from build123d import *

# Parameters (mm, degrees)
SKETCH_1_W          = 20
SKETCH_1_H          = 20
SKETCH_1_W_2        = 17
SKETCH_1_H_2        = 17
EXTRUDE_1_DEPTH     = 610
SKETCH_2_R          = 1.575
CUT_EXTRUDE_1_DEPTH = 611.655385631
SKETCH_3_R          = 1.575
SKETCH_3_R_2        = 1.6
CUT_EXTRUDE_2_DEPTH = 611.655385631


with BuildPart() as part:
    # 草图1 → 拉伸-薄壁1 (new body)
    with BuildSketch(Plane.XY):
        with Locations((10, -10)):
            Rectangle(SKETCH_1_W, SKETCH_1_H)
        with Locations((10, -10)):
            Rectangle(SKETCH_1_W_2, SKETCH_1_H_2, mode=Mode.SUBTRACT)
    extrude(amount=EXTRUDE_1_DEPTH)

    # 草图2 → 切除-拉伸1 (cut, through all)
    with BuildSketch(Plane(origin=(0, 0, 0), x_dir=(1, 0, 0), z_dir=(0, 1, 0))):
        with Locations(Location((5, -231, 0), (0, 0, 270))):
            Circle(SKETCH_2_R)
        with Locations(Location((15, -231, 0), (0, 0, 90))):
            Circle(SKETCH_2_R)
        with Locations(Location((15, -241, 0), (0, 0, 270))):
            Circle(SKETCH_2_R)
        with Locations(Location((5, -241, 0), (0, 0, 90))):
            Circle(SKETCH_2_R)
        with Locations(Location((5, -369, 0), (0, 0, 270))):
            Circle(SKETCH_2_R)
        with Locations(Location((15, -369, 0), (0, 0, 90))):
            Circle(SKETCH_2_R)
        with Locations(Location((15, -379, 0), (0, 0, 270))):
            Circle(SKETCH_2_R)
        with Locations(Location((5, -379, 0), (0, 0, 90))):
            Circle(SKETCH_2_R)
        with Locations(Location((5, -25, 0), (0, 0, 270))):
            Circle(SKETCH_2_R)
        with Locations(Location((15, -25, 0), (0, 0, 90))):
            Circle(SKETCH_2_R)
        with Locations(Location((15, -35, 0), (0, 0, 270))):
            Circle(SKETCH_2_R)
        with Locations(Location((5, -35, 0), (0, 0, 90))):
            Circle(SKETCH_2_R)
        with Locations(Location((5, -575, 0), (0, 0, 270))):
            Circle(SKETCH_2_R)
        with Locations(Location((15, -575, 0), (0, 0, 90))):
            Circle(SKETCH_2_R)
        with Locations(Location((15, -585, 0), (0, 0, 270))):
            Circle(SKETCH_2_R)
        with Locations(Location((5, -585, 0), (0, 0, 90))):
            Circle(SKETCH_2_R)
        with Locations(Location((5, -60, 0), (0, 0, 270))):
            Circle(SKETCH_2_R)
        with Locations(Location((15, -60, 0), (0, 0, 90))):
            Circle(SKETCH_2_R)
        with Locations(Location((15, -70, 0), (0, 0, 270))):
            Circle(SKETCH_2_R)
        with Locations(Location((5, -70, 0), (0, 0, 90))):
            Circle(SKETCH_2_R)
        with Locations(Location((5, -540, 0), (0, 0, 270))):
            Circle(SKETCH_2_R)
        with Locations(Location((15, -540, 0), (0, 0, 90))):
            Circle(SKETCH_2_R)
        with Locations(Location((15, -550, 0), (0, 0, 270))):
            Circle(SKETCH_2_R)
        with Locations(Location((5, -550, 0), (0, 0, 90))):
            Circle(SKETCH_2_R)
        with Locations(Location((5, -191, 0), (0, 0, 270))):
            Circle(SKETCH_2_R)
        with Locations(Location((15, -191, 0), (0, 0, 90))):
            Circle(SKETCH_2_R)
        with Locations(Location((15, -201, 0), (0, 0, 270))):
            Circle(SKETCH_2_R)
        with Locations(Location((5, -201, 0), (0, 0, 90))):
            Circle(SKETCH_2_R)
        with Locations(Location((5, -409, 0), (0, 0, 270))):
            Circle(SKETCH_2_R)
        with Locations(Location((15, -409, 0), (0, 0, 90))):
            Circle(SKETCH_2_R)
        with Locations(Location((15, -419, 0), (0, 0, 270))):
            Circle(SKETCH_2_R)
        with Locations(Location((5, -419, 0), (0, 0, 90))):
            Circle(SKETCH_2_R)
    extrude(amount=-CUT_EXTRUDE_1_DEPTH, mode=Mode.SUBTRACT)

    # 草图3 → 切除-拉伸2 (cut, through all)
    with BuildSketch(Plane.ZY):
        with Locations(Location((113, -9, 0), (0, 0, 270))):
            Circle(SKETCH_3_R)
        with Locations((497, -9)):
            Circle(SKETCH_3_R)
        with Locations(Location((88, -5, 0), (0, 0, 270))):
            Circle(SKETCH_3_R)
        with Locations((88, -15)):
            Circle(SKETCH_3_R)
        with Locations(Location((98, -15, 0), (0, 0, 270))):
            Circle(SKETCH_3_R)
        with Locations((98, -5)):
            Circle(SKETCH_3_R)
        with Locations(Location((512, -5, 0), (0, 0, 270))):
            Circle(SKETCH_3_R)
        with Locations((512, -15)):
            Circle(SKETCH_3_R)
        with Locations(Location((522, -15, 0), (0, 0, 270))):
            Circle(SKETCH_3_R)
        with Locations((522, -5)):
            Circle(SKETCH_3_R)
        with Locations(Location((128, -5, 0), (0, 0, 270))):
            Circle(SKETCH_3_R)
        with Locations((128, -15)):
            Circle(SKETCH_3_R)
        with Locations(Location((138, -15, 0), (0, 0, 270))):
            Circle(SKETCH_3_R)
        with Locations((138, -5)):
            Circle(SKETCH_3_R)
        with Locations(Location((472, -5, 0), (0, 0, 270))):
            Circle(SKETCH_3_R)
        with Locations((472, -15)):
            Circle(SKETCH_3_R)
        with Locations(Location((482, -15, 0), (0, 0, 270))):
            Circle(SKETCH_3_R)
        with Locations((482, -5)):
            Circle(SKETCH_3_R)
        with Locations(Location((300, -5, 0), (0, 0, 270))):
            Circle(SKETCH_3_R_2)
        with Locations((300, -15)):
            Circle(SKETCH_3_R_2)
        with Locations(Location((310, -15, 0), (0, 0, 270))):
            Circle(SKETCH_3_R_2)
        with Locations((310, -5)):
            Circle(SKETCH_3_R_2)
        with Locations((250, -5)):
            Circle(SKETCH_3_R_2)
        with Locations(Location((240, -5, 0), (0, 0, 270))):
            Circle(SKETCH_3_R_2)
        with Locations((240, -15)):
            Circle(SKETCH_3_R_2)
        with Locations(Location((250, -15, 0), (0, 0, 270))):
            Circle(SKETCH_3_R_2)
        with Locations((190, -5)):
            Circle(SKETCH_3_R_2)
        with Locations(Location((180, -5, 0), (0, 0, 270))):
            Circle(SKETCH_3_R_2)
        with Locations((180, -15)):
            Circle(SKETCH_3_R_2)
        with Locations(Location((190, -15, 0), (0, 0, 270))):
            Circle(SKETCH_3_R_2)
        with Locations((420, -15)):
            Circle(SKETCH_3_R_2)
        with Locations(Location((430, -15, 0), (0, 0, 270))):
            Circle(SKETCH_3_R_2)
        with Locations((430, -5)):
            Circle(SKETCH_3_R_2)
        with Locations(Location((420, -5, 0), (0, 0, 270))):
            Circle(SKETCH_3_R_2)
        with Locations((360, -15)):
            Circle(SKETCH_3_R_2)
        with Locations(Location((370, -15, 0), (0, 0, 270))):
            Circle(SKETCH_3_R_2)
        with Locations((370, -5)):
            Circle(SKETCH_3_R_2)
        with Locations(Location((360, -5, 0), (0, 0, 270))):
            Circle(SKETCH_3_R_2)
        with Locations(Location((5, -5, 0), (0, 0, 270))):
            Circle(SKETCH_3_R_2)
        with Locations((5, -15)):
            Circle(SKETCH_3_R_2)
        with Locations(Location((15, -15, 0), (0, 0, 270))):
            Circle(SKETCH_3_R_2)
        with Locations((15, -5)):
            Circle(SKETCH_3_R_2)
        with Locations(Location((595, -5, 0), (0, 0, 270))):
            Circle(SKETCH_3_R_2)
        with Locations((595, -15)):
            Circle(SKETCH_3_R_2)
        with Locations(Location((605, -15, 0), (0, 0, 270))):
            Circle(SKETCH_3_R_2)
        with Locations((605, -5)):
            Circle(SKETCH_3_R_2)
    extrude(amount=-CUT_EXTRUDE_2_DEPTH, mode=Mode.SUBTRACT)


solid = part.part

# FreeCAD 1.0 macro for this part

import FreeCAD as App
import Part
import Sketcher
from FreeCAD import Vector


def add_polygon(sketch, points):
    """Adds a closed chain of lines whose ends are joined by coincident constraints."""
    first, n = sketch.GeometryCount, len(points)
    for a, b in zip(points, points[1:] + points[:1]):
        sketch.addGeometry(Part.LineSegment(App.Vector(*a, 0), App.Vector(*b, 0)), False)
    for i in range(n):
        sketch.addConstraint(Sketcher.Constraint("Coincident", first + i, 2, first + (i + 1) % n, 1))

doc = App.newDocument("Part")
body = doc.addObject("PartDesign::Body", "Body")

# Sketch on XY plane
sketch1 = doc.addObject("Sketcher::SketchObject", "Sketch")
body.addObject(sketch1)
sketch1.AttachmentSupport = (doc.XY_Plane, [""])
sketch1.MapMode = "FlatFace"
add_polygon(sketch1, [(0, 0), (0, -20), (20, -20), (20, 0)])  # lines 0-3
add_polygon(sketch1, [(18, -18), (2, -18), (2, -2), (18, -2)])  # lines 4-7
sketch1.addConstraint(Sketcher.Constraint("Vertical", 0))
sketch1.addConstraint(Sketcher.Constraint("Horizontal", 1))
sketch1.addConstraint(Sketcher.Constraint("Vertical", 2))
sketch1.addConstraint(Sketcher.Constraint("Horizontal", 3))
sketch1.addConstraint(Sketcher.Constraint("Horizontal", 4))
sketch1.addConstraint(Sketcher.Constraint("Vertical", 5))
sketch1.addConstraint(Sketcher.Constraint("Horizontal", 6))
sketch1.addConstraint(Sketcher.Constraint("Vertical", 7))
sketch1.addConstraint(Sketcher.Constraint("Coincident", 3, 2, -1, 1))
sketch1.addConstraint(Sketcher.Constraint("Equal", 3, 0))
sketch1.addConstraint(Sketcher.Constraint("Equal", 6, 5))
sketch1.addConstraint(Sketcher.Constraint("DistanceX", 1, 1, 1, 2, 20.0))
sketch1.addConstraint(Sketcher.Constraint("DistanceX", 4, 2, 4, 1, 17.0))
sketch1.addConstraint(Sketcher.Constraint("DistanceX", -1, 1, 4, 2, 1.5))
sketch1.addConstraint(Sketcher.Constraint("DistanceY", 4, 2, -1, 1, 18.5))
pad1 = doc.addObject("PartDesign::Pad", "Pad")
body.addObject(pad1)
pad1.Profile = sketch1
pad1.Length = 610

# Sketch on XZ plane
sketch2 = doc.addObject("Sketcher::SketchObject", "Sketch001")
body.addObject(sketch2)
sketch2.AttachmentSupport = (doc.XZ_Plane, [""])
sketch2.MapMode = "FlatFace"
sketch2.addGeometry(Part.Circle(Vector(5, 231, 0), Vector(0, 0, 1), 1.6), False)
sketch2.addGeometry(Part.Circle(Vector(15, 231, 0), Vector(0, 0, 1), 1.6), False)
sketch2.addGeometry(Part.Circle(Vector(15, 241, 0), Vector(0, 0, 1), 1.6), False)
sketch2.addGeometry(Part.Circle(Vector(5, 241, 0), Vector(0, 0, 1), 1.6), False)
sketch2.addGeometry(Part.Circle(Vector(5, 369, 0), Vector(0, 0, 1), 1.6), False)
sketch2.addGeometry(Part.Circle(Vector(15, 369, 0), Vector(0, 0, 1), 1.6), False)
sketch2.addGeometry(Part.Circle(Vector(15, 379, 0), Vector(0, 0, 1), 1.6), False)
sketch2.addGeometry(Part.Circle(Vector(5, 379, 0), Vector(0, 0, 1), 1.6), False)
sketch2.addGeometry(Part.Circle(Vector(5, 25, 0), Vector(0, 0, 1), 1.6), False)
sketch2.addGeometry(Part.Circle(Vector(15, 25, 0), Vector(0, 0, 1), 1.6), False)
sketch2.addGeometry(Part.Circle(Vector(15, 35, 0), Vector(0, 0, 1), 1.6), False)
sketch2.addGeometry(Part.Circle(Vector(5, 35, 0), Vector(0, 0, 1), 1.6), False)
sketch2.addGeometry(Part.Circle(Vector(5, 575, 0), Vector(0, 0, 1), 1.6), False)
sketch2.addGeometry(Part.Circle(Vector(15, 575, 0), Vector(0, 0, 1), 1.6), False)
sketch2.addGeometry(Part.Circle(Vector(15, 585, 0), Vector(0, 0, 1), 1.6), False)
sketch2.addGeometry(Part.Circle(Vector(5, 585, 0), Vector(0, 0, 1), 1.6), False)
sketch2.addGeometry(Part.Circle(Vector(5, 60, 0), Vector(0, 0, 1), 1.6), False)
sketch2.addGeometry(Part.Circle(Vector(15, 60, 0), Vector(0, 0, 1), 1.6), False)
sketch2.addGeometry(Part.Circle(Vector(15, 70, 0), Vector(0, 0, 1), 1.6), False)
sketch2.addGeometry(Part.Circle(Vector(5, 70, 0), Vector(0, 0, 1), 1.6), False)
sketch2.addGeometry(Part.Circle(Vector(5, 540, 0), Vector(0, 0, 1), 1.6), False)
sketch2.addGeometry(Part.Circle(Vector(15, 540, 0), Vector(0, 0, 1), 1.6), False)
sketch2.addGeometry(Part.Circle(Vector(15, 550, 0), Vector(0, 0, 1), 1.6), False)
sketch2.addGeometry(Part.Circle(Vector(5, 550, 0), Vector(0, 0, 1), 1.6), False)
sketch2.addGeometry(Part.Circle(Vector(5, 191, 0), Vector(0, 0, 1), 1.6), False)
sketch2.addGeometry(Part.Circle(Vector(15, 191, 0), Vector(0, 0, 1), 1.6), False)
sketch2.addGeometry(Part.Circle(Vector(15, 201, 0), Vector(0, 0, 1), 1.6), False)
sketch2.addGeometry(Part.Circle(Vector(5, 201, 0), Vector(0, 0, 1), 1.6), False)
sketch2.addGeometry(Part.Circle(Vector(5, 409, 0), Vector(0, 0, 1), 1.6), False)
sketch2.addGeometry(Part.Circle(Vector(15, 409, 0), Vector(0, 0, 1), 1.6), False)
sketch2.addGeometry(Part.Circle(Vector(15, 419, 0), Vector(0, 0, 1), 1.6), False)
sketch2.addGeometry(Part.Circle(Vector(5, 419, 0), Vector(0, 0, 1), 1.6), False)
sketch2.addConstraint(Sketcher.Constraint("Equal", 0, 1))
sketch2.addConstraint(Sketcher.Constraint("Equal", 1, 2))
sketch2.addConstraint(Sketcher.Constraint("Equal", 2, 3))
sketch2.addConstraint(Sketcher.Constraint("Equal", 3, 4))
sketch2.addConstraint(Sketcher.Constraint("Equal", 4, 5))
sketch2.addConstraint(Sketcher.Constraint("Equal", 5, 6))
sketch2.addConstraint(Sketcher.Constraint("Equal", 6, 7))
sketch2.addConstraint(Sketcher.Constraint("Equal", 7, 8))
sketch2.addConstraint(Sketcher.Constraint("Equal", 8, 9))
sketch2.addConstraint(Sketcher.Constraint("Equal", 9, 10))
sketch2.addConstraint(Sketcher.Constraint("Equal", 10, 11))
sketch2.addConstraint(Sketcher.Constraint("Equal", 11, 12))
sketch2.addConstraint(Sketcher.Constraint("Equal", 12, 13))
sketch2.addConstraint(Sketcher.Constraint("Equal", 13, 14))
sketch2.addConstraint(Sketcher.Constraint("Equal", 14, 15))
sketch2.addConstraint(Sketcher.Constraint("Equal", 15, 16))
sketch2.addConstraint(Sketcher.Constraint("Equal", 16, 17))
sketch2.addConstraint(Sketcher.Constraint("Equal", 17, 18))
sketch2.addConstraint(Sketcher.Constraint("Equal", 18, 19))
sketch2.addConstraint(Sketcher.Constraint("Equal", 19, 20))
sketch2.addConstraint(Sketcher.Constraint("Equal", 20, 21))
sketch2.addConstraint(Sketcher.Constraint("Equal", 21, 22))
sketch2.addConstraint(Sketcher.Constraint("Equal", 22, 23))
sketch2.addConstraint(Sketcher.Constraint("Equal", 23, 24))
sketch2.addConstraint(Sketcher.Constraint("Equal", 24, 25))
sketch2.addConstraint(Sketcher.Constraint("Equal", 25, 26))
sketch2.addConstraint(Sketcher.Constraint("Equal", 26, 27))
sketch2.addConstraint(Sketcher.Constraint("Equal", 27, 28))
sketch2.addConstraint(Sketcher.Constraint("Equal", 28, 29))
sketch2.addConstraint(Sketcher.Constraint("Equal", 29, 30))
sketch2.addConstraint(Sketcher.Constraint("Equal", 30, 31))
sketch2.addConstraint(Sketcher.Constraint("Horizontal", 0, 3, 1, 3))
sketch2.addConstraint(Sketcher.Constraint("Horizontal", 2, 3, 3, 3))
sketch2.addConstraint(Sketcher.Constraint("Horizontal", 4, 3, 5, 3))
sketch2.addConstraint(Sketcher.Constraint("Horizontal", 6, 3, 7, 3))
sketch2.addConstraint(Sketcher.Constraint("Horizontal", 8, 3, 9, 3))
sketch2.addConstraint(Sketcher.Constraint("Horizontal", 10, 3, 11, 3))
sketch2.addConstraint(Sketcher.Constraint("Horizontal", 12, 3, 13, 3))
sketch2.addConstraint(Sketcher.Constraint("Horizontal", 14, 3, 15, 3))
sketch2.addConstraint(Sketcher.Constraint("Horizontal", 16, 3, 17, 3))
sketch2.addConstraint(Sketcher.Constraint("Horizontal", 18, 3, 19, 3))
sketch2.addConstraint(Sketcher.Constraint("Horizontal", 20, 3, 21, 3))
sketch2.addConstraint(Sketcher.Constraint("Horizontal", 22, 3, 23, 3))
sketch2.addConstraint(Sketcher.Constraint("Horizontal", 24, 3, 25, 3))
sketch2.addConstraint(Sketcher.Constraint("Horizontal", 26, 3, 27, 3))
sketch2.addConstraint(Sketcher.Constraint("Horizontal", 28, 3, 29, 3))
sketch2.addConstraint(Sketcher.Constraint("Horizontal", 30, 3, 31, 3))
sketch2.addConstraint(Sketcher.Constraint("Vertical", 1, 3, 2, 3))
sketch2.addConstraint(Sketcher.Constraint("Vertical", 0, 3, 3, 3))
sketch2.addConstraint(Sketcher.Constraint("Vertical", 3, 3, 4, 3))
sketch2.addConstraint(Sketcher.Constraint("Vertical", 2, 3, 5, 3))
sketch2.addConstraint(Sketcher.Constraint("Vertical", 5, 3, 6, 3))
sketch2.addConstraint(Sketcher.Constraint("Vertical", 4, 3, 7, 3))
sketch2.addConstraint(Sketcher.Constraint("Vertical", 7, 3, 8, 3))
sketch2.addConstraint(Sketcher.Constraint("Vertical", 6, 3, 9, 3))
sketch2.addConstraint(Sketcher.Constraint("Vertical", 9, 3, 10, 3))
sketch2.addConstraint(Sketcher.Constraint("Vertical", 8, 3, 11, 3))
sketch2.addConstraint(Sketcher.Constraint("Vertical", 11, 3, 12, 3))
sketch2.addConstraint(Sketcher.Constraint("Vertical", 10, 3, 13, 3))
sketch2.addConstraint(Sketcher.Constraint("Vertical", 13, 3, 14, 3))
sketch2.addConstraint(Sketcher.Constraint("Vertical", 12, 3, 15, 3))
sketch2.addConstraint(Sketcher.Constraint("Vertical", 15, 3, 16, 3))
sketch2.addConstraint(Sketcher.Constraint("Vertical", 14, 3, 17, 3))
sketch2.addConstraint(Sketcher.Constraint("Vertical", 17, 3, 18, 3))
sketch2.addConstraint(Sketcher.Constraint("Vertical", 16, 3, 19, 3))
sketch2.addConstraint(Sketcher.Constraint("Vertical", 19, 3, 20, 3))
sketch2.addConstraint(Sketcher.Constraint("Vertical", 18, 3, 21, 3))
sketch2.addConstraint(Sketcher.Constraint("Vertical", 21, 3, 22, 3))
sketch2.addConstraint(Sketcher.Constraint("Vertical", 20, 3, 23, 3))
sketch2.addConstraint(Sketcher.Constraint("Vertical", 23, 3, 24, 3))
sketch2.addConstraint(Sketcher.Constraint("Vertical", 22, 3, 25, 3))
sketch2.addConstraint(Sketcher.Constraint("Vertical", 25, 3, 26, 3))
sketch2.addConstraint(Sketcher.Constraint("Vertical", 24, 3, 27, 3))
sketch2.addConstraint(Sketcher.Constraint("Vertical", 27, 3, 28, 3))
sketch2.addConstraint(Sketcher.Constraint("Vertical", 26, 3, 29, 3))
sketch2.addConstraint(Sketcher.Constraint("Vertical", 29, 3, 30, 3))
sketch2.addConstraint(Sketcher.Constraint("Vertical", 28, 3, 31, 3))
sketch2.addConstraint(Sketcher.Constraint("Diameter", 0, 3.15))
sketch2.addConstraint(Sketcher.Constraint("DistanceX", -1, 1, 0, 3, 5.0))
sketch2.addConstraint(Sketcher.Constraint("DistanceY", -1, 1, 0, 3, 231.0))
sketch2.addConstraint(Sketcher.Constraint("DistanceX", -1, 1, 1, 3, 15.0))
sketch2.addConstraint(Sketcher.Constraint("DistanceY", -1, 1, 2, 3, 241.0))
sketch2.addConstraint(Sketcher.Constraint("DistanceY", -1, 1, 4, 3, 369.0))
sketch2.addConstraint(Sketcher.Constraint("DistanceY", -1, 1, 6, 3, 379.0))
sketch2.addConstraint(Sketcher.Constraint("DistanceY", -1, 1, 8, 3, 25.0))
sketch2.addConstraint(Sketcher.Constraint("DistanceY", -1, 1, 10, 3, 35.0))
sketch2.addConstraint(Sketcher.Constraint("DistanceY", -1, 1, 12, 3, 575.0))
sketch2.addConstraint(Sketcher.Constraint("DistanceY", -1, 1, 14, 3, 585.0))
sketch2.addConstraint(Sketcher.Constraint("DistanceY", -1, 1, 16, 3, 60.0))
sketch2.addConstraint(Sketcher.Constraint("DistanceY", -1, 1, 18, 3, 70.0))
sketch2.addConstraint(Sketcher.Constraint("DistanceY", -1, 1, 20, 3, 540.0))
sketch2.addConstraint(Sketcher.Constraint("DistanceY", -1, 1, 22, 3, 550.0))
sketch2.addConstraint(Sketcher.Constraint("DistanceY", -1, 1, 24, 3, 191.0))
sketch2.addConstraint(Sketcher.Constraint("DistanceY", -1, 1, 26, 3, 201.0))
sketch2.addConstraint(Sketcher.Constraint("DistanceY", -1, 1, 28, 3, 409.0))
sketch2.addConstraint(Sketcher.Constraint("DistanceY", -1, 1, 30, 3, 419.0))
pocket1 = doc.addObject("PartDesign::Pocket", "Pocket")
body.addObject(pocket1)
pocket1.Profile = sketch2
pocket1.Type = "ThroughAll"
pocket1.Reversed = True

# Sketch on YZ plane
sketch3 = doc.addObject("Sketcher::SketchObject", "Sketch002")
body.addObject(sketch3)
sketch3.AttachmentSupport = (doc.YZ_Plane, [""])
sketch3.MapMode = "FlatFace"
sketch3.addGeometry(Part.Circle(Vector(-9, 113, 0), Vector(0, 0, 1), 1.6), False)
sketch3.addGeometry(Part.Circle(Vector(-9, 497, 0), Vector(0, 0, 1), 1.6), False)
sketch3.addGeometry(Part.Circle(Vector(-5, 88, 0), Vector(0, 0, 1), 1.6), False)
sketch3.addGeometry(Part.Circle(Vector(-15, 88, 0), Vector(0, 0, 1), 1.6), False)
sketch3.addGeometry(Part.Circle(Vector(-15, 98, 0), Vector(0, 0, 1), 1.6), False)
sketch3.addGeometry(Part.Circle(Vector(-5, 98, 0), Vector(0, 0, 1), 1.6), False)
sketch3.addGeometry(Part.Circle(Vector(-5, 512, 0), Vector(0, 0, 1), 1.6), False)
sketch3.addGeometry(Part.Circle(Vector(-15, 512, 0), Vector(0, 0, 1), 1.6), False)
sketch3.addGeometry(Part.Circle(Vector(-15, 522, 0), Vector(0, 0, 1), 1.6), False)
sketch3.addGeometry(Part.Circle(Vector(-5, 522, 0), Vector(0, 0, 1), 1.6), False)
sketch3.addGeometry(Part.Circle(Vector(-5, 128, 0), Vector(0, 0, 1), 1.6), False)
sketch3.addGeometry(Part.Circle(Vector(-15, 128, 0), Vector(0, 0, 1), 1.6), False)
sketch3.addGeometry(Part.Circle(Vector(-15, 138, 0), Vector(0, 0, 1), 1.6), False)
sketch3.addGeometry(Part.Circle(Vector(-5, 138, 0), Vector(0, 0, 1), 1.6), False)
sketch3.addGeometry(Part.Circle(Vector(-5, 472, 0), Vector(0, 0, 1), 1.6), False)
sketch3.addGeometry(Part.Circle(Vector(-15, 472, 0), Vector(0, 0, 1), 1.6), False)
sketch3.addGeometry(Part.Circle(Vector(-15, 482, 0), Vector(0, 0, 1), 1.6), False)
sketch3.addGeometry(Part.Circle(Vector(-5, 482, 0), Vector(0, 0, 1), 1.6), False)
sketch3.addGeometry(Part.Circle(Vector(-5, 300, 0), Vector(0, 0, 1), 1.6), False)
sketch3.addGeometry(Part.Circle(Vector(-15, 300, 0), Vector(0, 0, 1), 1.6), False)
sketch3.addGeometry(Part.Circle(Vector(-15, 310, 0), Vector(0, 0, 1), 1.6), False)
sketch3.addGeometry(Part.Circle(Vector(-5, 310, 0), Vector(0, 0, 1), 1.6), False)
sketch3.addGeometry(Part.Circle(Vector(-5, 250, 0), Vector(0, 0, 1), 1.6), False)
sketch3.addGeometry(Part.Circle(Vector(-5, 240, 0), Vector(0, 0, 1), 1.6), False)
sketch3.addGeometry(Part.Circle(Vector(-15, 240, 0), Vector(0, 0, 1), 1.6), False)
sketch3.addGeometry(Part.Circle(Vector(-15, 250, 0), Vector(0, 0, 1), 1.6), False)
sketch3.addGeometry(Part.Circle(Vector(-5, 190, 0), Vector(0, 0, 1), 1.6), False)
sketch3.addGeometry(Part.Circle(Vector(-5, 180, 0), Vector(0, 0, 1), 1.6), False)
sketch3.addGeometry(Part.Circle(Vector(-15, 180, 0), Vector(0, 0, 1), 1.6), False)
sketch3.addGeometry(Part.Circle(Vector(-15, 190, 0), Vector(0, 0, 1), 1.6), False)
sketch3.addGeometry(Part.Circle(Vector(-15, 420, 0), Vector(0, 0, 1), 1.6), False)
sketch3.addGeometry(Part.Circle(Vector(-15, 430, 0), Vector(0, 0, 1), 1.6), False)
sketch3.addGeometry(Part.Circle(Vector(-5, 430, 0), Vector(0, 0, 1), 1.6), False)
sketch3.addGeometry(Part.Circle(Vector(-5, 420, 0), Vector(0, 0, 1), 1.6), False)
sketch3.addGeometry(Part.Circle(Vector(-15, 360, 0), Vector(0, 0, 1), 1.6), False)
sketch3.addGeometry(Part.Circle(Vector(-15, 370, 0), Vector(0, 0, 1), 1.6), False)
sketch3.addGeometry(Part.Circle(Vector(-5, 370, 0), Vector(0, 0, 1), 1.6), False)
sketch3.addGeometry(Part.Circle(Vector(-5, 360, 0), Vector(0, 0, 1), 1.6), False)
sketch3.addGeometry(Part.Circle(Vector(-5, 5, 0), Vector(0, 0, 1), 1.6), False)
sketch3.addGeometry(Part.Circle(Vector(-15, 5, 0), Vector(0, 0, 1), 1.6), False)
sketch3.addGeometry(Part.Circle(Vector(-15, 15, 0), Vector(0, 0, 1), 1.6), False)
sketch3.addGeometry(Part.Circle(Vector(-5, 15, 0), Vector(0, 0, 1), 1.6), False)
sketch3.addGeometry(Part.Circle(Vector(-5, 595, 0), Vector(0, 0, 1), 1.6), False)
sketch3.addGeometry(Part.Circle(Vector(-15, 595, 0), Vector(0, 0, 1), 1.6), False)
sketch3.addGeometry(Part.Circle(Vector(-15, 605, 0), Vector(0, 0, 1), 1.6), False)
sketch3.addGeometry(Part.Circle(Vector(-5, 605, 0), Vector(0, 0, 1), 1.6), False)
sketch3.addConstraint(Sketcher.Constraint("Equal", 0, 1))
sketch3.addConstraint(Sketcher.Constraint("Equal", 1, 2))
sketch3.addConstraint(Sketcher.Constraint("Equal", 2, 3))
sketch3.addConstraint(Sketcher.Constraint("Equal", 3, 4))
sketch3.addConstraint(Sketcher.Constraint("Equal", 4, 5))
sketch3.addConstraint(Sketcher.Constraint("Equal", 5, 6))
sketch3.addConstraint(Sketcher.Constraint("Equal", 6, 7))
sketch3.addConstraint(Sketcher.Constraint("Equal", 7, 8))
sketch3.addConstraint(Sketcher.Constraint("Equal", 8, 9))
sketch3.addConstraint(Sketcher.Constraint("Equal", 9, 10))
sketch3.addConstraint(Sketcher.Constraint("Equal", 10, 11))
sketch3.addConstraint(Sketcher.Constraint("Equal", 11, 12))
sketch3.addConstraint(Sketcher.Constraint("Equal", 12, 13))
sketch3.addConstraint(Sketcher.Constraint("Equal", 13, 14))
sketch3.addConstraint(Sketcher.Constraint("Equal", 14, 15))
sketch3.addConstraint(Sketcher.Constraint("Equal", 15, 16))
sketch3.addConstraint(Sketcher.Constraint("Equal", 16, 17))
sketch3.addConstraint(Sketcher.Constraint("Equal", 18, 19))
sketch3.addConstraint(Sketcher.Constraint("Equal", 19, 20))
sketch3.addConstraint(Sketcher.Constraint("Equal", 20, 21))
sketch3.addConstraint(Sketcher.Constraint("Equal", 21, 22))
sketch3.addConstraint(Sketcher.Constraint("Equal", 22, 23))
sketch3.addConstraint(Sketcher.Constraint("Equal", 23, 24))
sketch3.addConstraint(Sketcher.Constraint("Equal", 24, 25))
sketch3.addConstraint(Sketcher.Constraint("Equal", 25, 26))
sketch3.addConstraint(Sketcher.Constraint("Equal", 26, 27))
sketch3.addConstraint(Sketcher.Constraint("Equal", 27, 28))
sketch3.addConstraint(Sketcher.Constraint("Equal", 28, 29))
sketch3.addConstraint(Sketcher.Constraint("Equal", 29, 30))
sketch3.addConstraint(Sketcher.Constraint("Equal", 30, 31))
sketch3.addConstraint(Sketcher.Constraint("Equal", 31, 32))
sketch3.addConstraint(Sketcher.Constraint("Equal", 32, 33))
sketch3.addConstraint(Sketcher.Constraint("Equal", 33, 34))
sketch3.addConstraint(Sketcher.Constraint("Equal", 34, 35))
sketch3.addConstraint(Sketcher.Constraint("Equal", 35, 36))
sketch3.addConstraint(Sketcher.Constraint("Equal", 36, 37))
sketch3.addConstraint(Sketcher.Constraint("Equal", 37, 38))
sketch3.addConstraint(Sketcher.Constraint("Equal", 38, 39))
sketch3.addConstraint(Sketcher.Constraint("Equal", 39, 40))
sketch3.addConstraint(Sketcher.Constraint("Equal", 40, 41))
sketch3.addConstraint(Sketcher.Constraint("Equal", 41, 42))
sketch3.addConstraint(Sketcher.Constraint("Equal", 42, 43))
sketch3.addConstraint(Sketcher.Constraint("Equal", 43, 44))
sketch3.addConstraint(Sketcher.Constraint("Equal", 44, 45))
sketch3.addConstraint(Sketcher.Constraint("Horizontal", 2, 3, 3, 3))
sketch3.addConstraint(Sketcher.Constraint("Horizontal", 4, 3, 5, 3))
sketch3.addConstraint(Sketcher.Constraint("Horizontal", 6, 3, 7, 3))
sketch3.addConstraint(Sketcher.Constraint("Horizontal", 8, 3, 9, 3))
sketch3.addConstraint(Sketcher.Constraint("Horizontal", 10, 3, 11, 3))
sketch3.addConstraint(Sketcher.Constraint("Horizontal", 12, 3, 13, 3))
sketch3.addConstraint(Sketcher.Constraint("Horizontal", 14, 3, 15, 3))
sketch3.addConstraint(Sketcher.Constraint("Horizontal", 16, 3, 17, 3))
sketch3.addConstraint(Sketcher.Constraint("Horizontal", 18, 3, 19, 3))
sketch3.addConstraint(Sketcher.Constraint("Horizontal", 20, 3, 21, 3))
sketch3.addConstraint(Sketcher.Constraint("Horizontal", 23, 3, 24, 3))
sketch3.addConstraint(Sketcher.Constraint("Horizontal", 22, 3, 25, 3))
sketch3.addConstraint(Sketcher.Constraint("Horizontal", 27, 3, 28, 3))
sketch3.addConstraint(Sketcher.Constraint("Horizontal", 26, 3, 29, 3))
sketch3.addConstraint(Sketcher.Constraint("Horizontal", 31, 3, 32, 3))
sketch3.addConstraint(Sketcher.Constraint("Horizontal", 30, 3, 33, 3))
sketch3.addConstraint(Sketcher.Constraint("Horizontal", 35, 3, 36, 3))
sketch3.addConstraint(Sketcher.Constraint("Horizontal", 34, 3, 37, 3))
sketch3.addConstraint(Sketcher.Constraint("Horizontal", 38, 3, 39, 3))
sketch3.addConstraint(Sketcher.Constraint("Horizontal", 40, 3, 41, 3))
sketch3.addConstraint(Sketcher.Constraint("Horizontal", 42, 3, 43, 3))
sketch3.addConstraint(Sketcher.Constraint("Horizontal", 44, 3, 45, 3))
sketch3.addConstraint(Sketcher.Constraint("Vertical", 0, 3, 1, 3))
sketch3.addConstraint(Sketcher.Constraint("Vertical", 3, 3, 4, 3))
sketch3.addConstraint(Sketcher.Constraint("Vertical", 2, 3, 5, 3))
sketch3.addConstraint(Sketcher.Constraint("Vertical", 5, 3, 6, 3))
sketch3.addConstraint(Sketcher.Constraint("Vertical", 4, 3, 7, 3))
sketch3.addConstraint(Sketcher.Constraint("Vertical", 7, 3, 8, 3))
sketch3.addConstraint(Sketcher.Constraint("Vertical", 6, 3, 9, 3))
sketch3.addConstraint(Sketcher.Constraint("Vertical", 9, 3, 10, 3))
sketch3.addConstraint(Sketcher.Constraint("Vertical", 8, 3, 11, 3))
sketch3.addConstraint(Sketcher.Constraint("Vertical", 11, 3, 12, 3))
sketch3.addConstraint(Sketcher.Constraint("Vertical", 10, 3, 13, 3))
sketch3.addConstraint(Sketcher.Constraint("Vertical", 13, 3, 14, 3))
sketch3.addConstraint(Sketcher.Constraint("Vertical", 12, 3, 15, 3))
sketch3.addConstraint(Sketcher.Constraint("Vertical", 15, 3, 16, 3))
sketch3.addConstraint(Sketcher.Constraint("Vertical", 14, 3, 17, 3))
sketch3.addConstraint(Sketcher.Constraint("Vertical", 17, 3, 18, 3))
sketch3.addConstraint(Sketcher.Constraint("Vertical", 16, 3, 19, 3))
sketch3.addConstraint(Sketcher.Constraint("Vertical", 19, 3, 20, 3))
sketch3.addConstraint(Sketcher.Constraint("Vertical", 18, 3, 21, 3))
sketch3.addConstraint(Sketcher.Constraint("Vertical", 21, 3, 22, 3))
sketch3.addConstraint(Sketcher.Constraint("Vertical", 22, 3, 23, 3))
sketch3.addConstraint(Sketcher.Constraint("Vertical", 20, 3, 24, 3))
sketch3.addConstraint(Sketcher.Constraint("Vertical", 24, 3, 25, 3))
sketch3.addConstraint(Sketcher.Constraint("Vertical", 23, 3, 26, 3))
sketch3.addConstraint(Sketcher.Constraint("Vertical", 26, 3, 27, 3))
sketch3.addConstraint(Sketcher.Constraint("Vertical", 25, 3, 28, 3))
sketch3.addConstraint(Sketcher.Constraint("Vertical", 28, 3, 29, 3))
sketch3.addConstraint(Sketcher.Constraint("Vertical", 29, 3, 30, 3))
sketch3.addConstraint(Sketcher.Constraint("Vertical", 30, 3, 31, 3))
sketch3.addConstraint(Sketcher.Constraint("Vertical", 27, 3, 32, 3))
sketch3.addConstraint(Sketcher.Constraint("Vertical", 32, 3, 33, 3))
sketch3.addConstraint(Sketcher.Constraint("Vertical", 31, 3, 34, 3))
sketch3.addConstraint(Sketcher.Constraint("Vertical", 34, 3, 35, 3))
sketch3.addConstraint(Sketcher.Constraint("Vertical", 33, 3, 36, 3))
sketch3.addConstraint(Sketcher.Constraint("Vertical", 36, 3, 37, 3))
sketch3.addConstraint(Sketcher.Constraint("Vertical", 37, 3, 38, 3))
sketch3.addConstraint(Sketcher.Constraint("Vertical", 35, 3, 39, 3))
sketch3.addConstraint(Sketcher.Constraint("Vertical", 39, 3, 40, 3))
sketch3.addConstraint(Sketcher.Constraint("Vertical", 38, 3, 41, 3))
sketch3.addConstraint(Sketcher.Constraint("Vertical", 41, 3, 42, 3))
sketch3.addConstraint(Sketcher.Constraint("Vertical", 40, 3, 43, 3))
sketch3.addConstraint(Sketcher.Constraint("Vertical", 43, 3, 44, 3))
sketch3.addConstraint(Sketcher.Constraint("Vertical", 42, 3, 45, 3))
sketch3.addConstraint(Sketcher.Constraint("Diameter", 18, 3.2))
sketch3.addConstraint(Sketcher.Constraint("Diameter", 0, 3.15))
sketch3.addConstraint(Sketcher.Constraint("DistanceX", 0, 3, -1, 1, 9.0))
sketch3.addConstraint(Sketcher.Constraint("DistanceY", -1, 1, 0, 3, 113.0))
sketch3.addConstraint(Sketcher.Constraint("DistanceY", -1, 1, 1, 3, 497.0))
sketch3.addConstraint(Sketcher.Constraint("DistanceX", 2, 3, -1, 1, 5.0))
sketch3.addConstraint(Sketcher.Constraint("DistanceY", -1, 1, 2, 3, 88.0))
sketch3.addConstraint(Sketcher.Constraint("DistanceX", 3, 3, -1, 1, 15.0))
sketch3.addConstraint(Sketcher.Constraint("DistanceY", -1, 1, 4, 3, 98.0))
sketch3.addConstraint(Sketcher.Constraint("DistanceY", -1, 1, 6, 3, 512.0))
sketch3.addConstraint(Sketcher.Constraint("DistanceY", -1, 1, 8, 3, 522.0))
sketch3.addConstraint(Sketcher.Constraint("DistanceY", -1, 1, 10, 3, 128.0))
sketch3.addConstraint(Sketcher.Constraint("DistanceY", -1, 1, 12, 3, 138.0))
sketch3.addConstraint(Sketcher.Constraint("DistanceY", -1, 1, 14, 3, 472.0))
sketch3.addConstraint(Sketcher.Constraint("DistanceY", -1, 1, 16, 3, 482.0))
sketch3.addConstraint(Sketcher.Constraint("DistanceY", -1, 1, 18, 3, 300.0))
sketch3.addConstraint(Sketcher.Constraint("DistanceY", -1, 1, 20, 3, 310.0))
sketch3.addConstraint(Sketcher.Constraint("DistanceY", -1, 1, 22, 3, 250.0))
sketch3.addConstraint(Sketcher.Constraint("DistanceY", -1, 1, 23, 3, 240.0))
sketch3.addConstraint(Sketcher.Constraint("DistanceY", -1, 1, 26, 3, 190.0))
sketch3.addConstraint(Sketcher.Constraint("DistanceY", -1, 1, 27, 3, 180.0))
sketch3.addConstraint(Sketcher.Constraint("DistanceY", -1, 1, 30, 3, 420.0))
sketch3.addConstraint(Sketcher.Constraint("DistanceY", -1, 1, 31, 3, 430.0))
sketch3.addConstraint(Sketcher.Constraint("DistanceY", -1, 1, 34, 3, 360.0))
sketch3.addConstraint(Sketcher.Constraint("DistanceY", -1, 1, 35, 3, 370.0))
sketch3.addConstraint(Sketcher.Constraint("DistanceY", -1, 1, 38, 3, 5.0))
sketch3.addConstraint(Sketcher.Constraint("DistanceY", -1, 1, 40, 3, 15.0))
sketch3.addConstraint(Sketcher.Constraint("DistanceY", -1, 1, 42, 3, 595.0))
sketch3.addConstraint(Sketcher.Constraint("DistanceY", -1, 1, 44, 3, 605.0))
pocket2 = doc.addObject("PartDesign::Pocket", "Pocket001")
body.addObject(pocket2)
pocket2.Profile = sketch3
pocket2.Type = "ThroughAll"
pocket2.Reversed = True

doc.recompute()
